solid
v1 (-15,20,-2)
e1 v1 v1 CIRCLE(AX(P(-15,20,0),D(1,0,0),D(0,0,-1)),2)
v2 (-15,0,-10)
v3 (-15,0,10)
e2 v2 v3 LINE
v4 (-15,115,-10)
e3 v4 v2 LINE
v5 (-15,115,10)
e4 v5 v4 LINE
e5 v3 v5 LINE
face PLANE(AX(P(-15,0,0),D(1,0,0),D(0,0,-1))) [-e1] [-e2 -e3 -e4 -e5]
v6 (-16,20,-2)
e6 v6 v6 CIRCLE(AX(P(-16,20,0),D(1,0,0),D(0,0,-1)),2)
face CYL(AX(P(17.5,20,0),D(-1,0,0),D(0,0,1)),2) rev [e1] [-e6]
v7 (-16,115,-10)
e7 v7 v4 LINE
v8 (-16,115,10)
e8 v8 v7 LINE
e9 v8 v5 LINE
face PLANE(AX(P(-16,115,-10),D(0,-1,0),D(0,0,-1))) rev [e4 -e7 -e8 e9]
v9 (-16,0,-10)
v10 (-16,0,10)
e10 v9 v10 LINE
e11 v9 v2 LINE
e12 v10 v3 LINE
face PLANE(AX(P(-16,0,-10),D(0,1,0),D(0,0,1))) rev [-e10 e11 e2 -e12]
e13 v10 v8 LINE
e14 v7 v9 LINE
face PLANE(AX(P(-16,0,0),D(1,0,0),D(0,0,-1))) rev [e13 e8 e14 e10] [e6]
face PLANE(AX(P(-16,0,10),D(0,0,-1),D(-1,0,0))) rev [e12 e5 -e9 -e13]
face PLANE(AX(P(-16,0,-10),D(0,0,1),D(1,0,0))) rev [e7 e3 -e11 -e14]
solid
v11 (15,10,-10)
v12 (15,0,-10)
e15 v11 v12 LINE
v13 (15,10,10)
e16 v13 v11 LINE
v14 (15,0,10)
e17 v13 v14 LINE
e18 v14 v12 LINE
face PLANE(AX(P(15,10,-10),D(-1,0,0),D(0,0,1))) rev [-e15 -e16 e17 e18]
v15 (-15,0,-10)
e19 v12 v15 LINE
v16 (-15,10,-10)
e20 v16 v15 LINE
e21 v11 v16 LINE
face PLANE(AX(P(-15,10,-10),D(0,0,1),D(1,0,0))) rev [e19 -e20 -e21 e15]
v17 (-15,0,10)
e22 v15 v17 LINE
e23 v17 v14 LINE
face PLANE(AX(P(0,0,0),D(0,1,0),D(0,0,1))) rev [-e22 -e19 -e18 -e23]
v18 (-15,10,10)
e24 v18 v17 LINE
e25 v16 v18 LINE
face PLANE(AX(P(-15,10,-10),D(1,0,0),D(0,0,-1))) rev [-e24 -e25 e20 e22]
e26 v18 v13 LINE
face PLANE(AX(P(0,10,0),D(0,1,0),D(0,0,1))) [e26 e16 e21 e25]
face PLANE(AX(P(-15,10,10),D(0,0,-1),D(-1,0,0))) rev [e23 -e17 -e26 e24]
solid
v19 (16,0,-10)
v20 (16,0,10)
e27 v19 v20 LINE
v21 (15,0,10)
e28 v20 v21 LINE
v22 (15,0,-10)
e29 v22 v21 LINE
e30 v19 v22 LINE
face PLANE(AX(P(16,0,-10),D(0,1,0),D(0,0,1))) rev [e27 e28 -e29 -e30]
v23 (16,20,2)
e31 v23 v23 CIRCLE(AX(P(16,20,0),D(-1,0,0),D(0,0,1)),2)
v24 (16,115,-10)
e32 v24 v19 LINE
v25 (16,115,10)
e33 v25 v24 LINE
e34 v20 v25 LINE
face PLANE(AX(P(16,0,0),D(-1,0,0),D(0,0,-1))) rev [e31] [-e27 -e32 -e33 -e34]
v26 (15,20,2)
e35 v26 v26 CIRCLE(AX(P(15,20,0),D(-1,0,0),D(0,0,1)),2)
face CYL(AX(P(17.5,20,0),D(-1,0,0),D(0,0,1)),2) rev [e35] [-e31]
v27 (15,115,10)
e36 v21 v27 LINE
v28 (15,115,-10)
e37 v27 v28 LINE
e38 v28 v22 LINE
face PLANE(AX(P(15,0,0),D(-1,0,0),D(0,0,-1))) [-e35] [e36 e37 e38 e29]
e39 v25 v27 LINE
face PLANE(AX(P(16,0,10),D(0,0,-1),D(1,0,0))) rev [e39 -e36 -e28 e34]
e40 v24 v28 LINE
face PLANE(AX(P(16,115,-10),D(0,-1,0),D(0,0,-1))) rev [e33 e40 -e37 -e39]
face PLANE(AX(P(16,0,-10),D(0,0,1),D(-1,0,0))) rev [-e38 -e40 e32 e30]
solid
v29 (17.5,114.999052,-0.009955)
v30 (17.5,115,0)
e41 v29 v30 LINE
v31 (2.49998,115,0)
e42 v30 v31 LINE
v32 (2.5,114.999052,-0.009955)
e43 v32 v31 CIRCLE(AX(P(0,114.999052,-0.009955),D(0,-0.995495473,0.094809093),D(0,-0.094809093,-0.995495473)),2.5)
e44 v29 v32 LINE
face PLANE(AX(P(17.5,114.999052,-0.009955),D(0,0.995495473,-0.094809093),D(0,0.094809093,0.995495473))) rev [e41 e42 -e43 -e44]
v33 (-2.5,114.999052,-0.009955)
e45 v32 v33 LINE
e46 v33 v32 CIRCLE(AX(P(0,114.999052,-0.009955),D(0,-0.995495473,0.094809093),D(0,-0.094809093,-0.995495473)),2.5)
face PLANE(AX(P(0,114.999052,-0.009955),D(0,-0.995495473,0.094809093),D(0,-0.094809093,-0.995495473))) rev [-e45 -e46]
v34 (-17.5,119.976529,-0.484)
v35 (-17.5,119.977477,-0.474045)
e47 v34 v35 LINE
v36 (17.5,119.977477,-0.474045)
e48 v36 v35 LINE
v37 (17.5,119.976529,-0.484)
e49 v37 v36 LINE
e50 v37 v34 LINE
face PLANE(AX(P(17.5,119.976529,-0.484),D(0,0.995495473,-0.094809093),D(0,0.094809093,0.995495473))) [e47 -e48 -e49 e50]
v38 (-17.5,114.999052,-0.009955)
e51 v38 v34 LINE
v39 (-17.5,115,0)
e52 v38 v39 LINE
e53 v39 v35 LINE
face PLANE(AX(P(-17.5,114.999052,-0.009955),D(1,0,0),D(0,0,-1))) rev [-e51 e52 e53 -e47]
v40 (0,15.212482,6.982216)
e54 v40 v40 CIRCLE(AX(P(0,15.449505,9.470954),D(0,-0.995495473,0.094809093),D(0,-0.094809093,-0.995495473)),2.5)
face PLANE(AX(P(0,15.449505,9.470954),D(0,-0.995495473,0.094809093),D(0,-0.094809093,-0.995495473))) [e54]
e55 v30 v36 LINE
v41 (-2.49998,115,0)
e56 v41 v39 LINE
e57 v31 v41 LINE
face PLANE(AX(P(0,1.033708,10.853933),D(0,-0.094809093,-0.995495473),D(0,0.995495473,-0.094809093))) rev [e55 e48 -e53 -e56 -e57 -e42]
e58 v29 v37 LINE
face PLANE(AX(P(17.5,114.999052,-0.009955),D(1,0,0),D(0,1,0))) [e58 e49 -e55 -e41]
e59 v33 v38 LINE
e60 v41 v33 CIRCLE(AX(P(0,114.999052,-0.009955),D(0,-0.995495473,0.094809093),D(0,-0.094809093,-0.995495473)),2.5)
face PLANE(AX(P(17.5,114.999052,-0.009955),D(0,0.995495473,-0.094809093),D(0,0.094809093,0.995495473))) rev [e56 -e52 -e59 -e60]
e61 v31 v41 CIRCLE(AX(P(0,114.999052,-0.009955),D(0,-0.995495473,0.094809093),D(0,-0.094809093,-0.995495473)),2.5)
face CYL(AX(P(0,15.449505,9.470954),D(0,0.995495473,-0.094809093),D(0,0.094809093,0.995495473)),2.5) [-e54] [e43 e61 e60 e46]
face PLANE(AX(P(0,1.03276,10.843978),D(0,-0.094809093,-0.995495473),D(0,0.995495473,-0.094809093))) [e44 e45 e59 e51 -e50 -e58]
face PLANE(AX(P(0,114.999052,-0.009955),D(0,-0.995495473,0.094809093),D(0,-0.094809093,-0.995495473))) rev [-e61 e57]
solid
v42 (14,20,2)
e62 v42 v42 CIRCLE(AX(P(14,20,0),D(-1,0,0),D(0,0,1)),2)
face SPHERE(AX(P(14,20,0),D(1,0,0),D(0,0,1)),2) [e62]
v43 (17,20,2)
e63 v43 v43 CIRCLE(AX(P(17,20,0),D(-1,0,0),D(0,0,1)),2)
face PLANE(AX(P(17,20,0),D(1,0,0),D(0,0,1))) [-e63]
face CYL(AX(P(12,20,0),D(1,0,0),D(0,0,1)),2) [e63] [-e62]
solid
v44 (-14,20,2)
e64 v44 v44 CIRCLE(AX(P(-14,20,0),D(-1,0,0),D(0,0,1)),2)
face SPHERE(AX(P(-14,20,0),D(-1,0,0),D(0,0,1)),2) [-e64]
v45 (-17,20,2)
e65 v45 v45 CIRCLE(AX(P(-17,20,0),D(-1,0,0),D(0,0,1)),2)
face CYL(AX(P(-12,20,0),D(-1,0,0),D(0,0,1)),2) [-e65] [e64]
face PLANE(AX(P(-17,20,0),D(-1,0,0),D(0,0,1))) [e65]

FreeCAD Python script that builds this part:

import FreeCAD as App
import Part
import Sketcher

V = App.Vector
Q = App.Units.Quantity


def edges_at(feature, points):
    """Names of the edges that pass closest to the given points."""
    edges = feature.Shape.Edges
    near = lambda p: min(range(len(edges)), key=lambda i: edges[i].distToShape(Part.Vertex(*p))[0])
    return sorted({f"Edge{near(p) + 1}" for p in points})

doc = App.newDocument("Part")
params = doc.addObject("Spreadsheet::Sheet", "Params")
for row, (alias, value) in enumerate([
    ("sketch1_width", "30 mm"),
    ("sketch1_height", "20 mm"),
    ("pad1_length", "10 mm"),
    ("sketch2_width", "115 mm"),
    ("sketch2_height", "20 mm"),
    ("pad2_length", "1 mm"),
    ("sketch3_diameter", "4 mm"),
    ("pad3_length", "1 mm"),
    ("pad3_length2", "4 mm"),
    ("fillet_radius", "2 mm"),
    ("sketch4_width", "35 mm"),
    ("sketch4_height", "5 mm"),
    ("pad4_length", "0.01 mm"),
    ("sketch5_diameter", "5 mm"),
    ("pad5_length", "100 mm"),
    ("sketch6_diameter", "4 mm"),
    ("pad6_length", "2.5 mm"),
    ("pad6_length2", "34.5 mm"),
], start=1):
    params.set(f"A{row}", alias)
    params.set(f"B{row}", "=" + value)
    params.setAlias(f"B{row}", alias)

body = doc.addObject("PartDesign::Body", "Body")

sketch1 = body.newObject("Sketcher::SketchObject", "Sketch")
sketch1.AttachmentSupport = (doc.getObject("XZ_Plane"), [""])
sketch1.MapMode = "FlatFace"
sketch1.addGeometry(Part.LineSegment(V(-15, -10, 0), V(-15, 10, 0)), False)
sketch1.addGeometry(Part.LineSegment(V(-15, 10, 0), V(15, 10, 0)), False)
sketch1.addGeometry(Part.LineSegment(V(15, 10, 0), V(15, -10, 0)), False)
sketch1.addGeometry(Part.LineSegment(V(15, -10, 0), V(-15, -10, 0)), False)
sketch1.addConstraint(Sketcher.Constraint("Coincident", 0, 2, 1, 1))
sketch1.addConstraint(Sketcher.Constraint("Coincident", 1, 2, 2, 1))
sketch1.addConstraint(Sketcher.Constraint("Coincident", 2, 2, 3, 1))
sketch1.addConstraint(Sketcher.Constraint("Coincident", 3, 2, 0, 1))
sketch1.addConstraint(Sketcher.Constraint("Vertical", 0))
sketch1.addConstraint(Sketcher.Constraint("Horizontal", 1))
sketch1.addConstraint(Sketcher.Constraint("Vertical", 2))
sketch1.addConstraint(Sketcher.Constraint("Horizontal", 3))
sketch1.addConstraint(Sketcher.Constraint("Symmetric", 0, 2, 2, 2, -1, 1))
sketch1.addConstraint(Sketcher.Constraint("DistanceX", 1, 1, 1, 2, Q("30 mm")))
sketch1.addConstraint(Sketcher.Constraint("DistanceY", 0, 1, 0, 2, Q("20 mm")))
sketch1.setExpression("Constraints[9]", "Params.sketch1_width")
sketch1.setExpression("Constraints[10]", "Params.sketch1_height")
pad1 = body.newObject("PartDesign::Pad", "Pad")
pad1.Profile = sketch1
pad1.setExpression("Length", "Params.pad1_length")
pad1.Reversed = True
body2 = doc.addObject("PartDesign::Body", "Body001")

sketch2 = body2.newObject("Sketcher::SketchObject", "Sketch001")
sketch2.AttachmentSupport = (doc.getObject("YZ_Plane001"), [""])
sketch2.MapMode = "FlatFace"
sketch2.AttachmentOffset = App.Placement(V(0, 0, -15), App.Rotation())
sketch2.addGeometry(Part.LineSegment(V(115, -10, 0), V(0, -10, 0)), False)
sketch2.addGeometry(Part.LineSegment(V(0, -10, 0), V(0, 10, 0)), False)
sketch2.addGeometry(Part.LineSegment(V(0, 10, 0), V(115, 10, 0)), False)
sketch2.addGeometry(Part.LineSegment(V(115, 10, 0), V(115, -10, 0)), False)
sketch2.addConstraint(Sketcher.Constraint("Coincident", 0, 2, 1, 1))
sketch2.addConstraint(Sketcher.Constraint("Coincident", 1, 2, 2, 1))
sketch2.addConstraint(Sketcher.Constraint("Coincident", 2, 2, 3, 1))
sketch2.addConstraint(Sketcher.Constraint("Coincident", 3, 2, 0, 1))
sketch2.addConstraint(Sketcher.Constraint("Horizontal", 0))
sketch2.addConstraint(Sketcher.Constraint("Vertical", 1))
sketch2.addConstraint(Sketcher.Constraint("Horizontal", 2))
sketch2.addConstraint(Sketcher.Constraint("Vertical", 3))
sketch2.addConstraint(Sketcher.Constraint("Symmetric", 0, 2, 1, 2, -1, 1))
sketch2.addConstraint(Sketcher.Constraint("DistanceX", 0, 2, 0, 1, Q("115 mm")))
sketch2.addConstraint(Sketcher.Constraint("DistanceY", 1, 1, 1, 2, Q("20 mm")))
sketch2.setExpression("Constraints[9]", "Params.sketch2_width")
sketch2.setExpression("Constraints[10]", "Params.sketch2_height")
pad2 = body2.newObject("PartDesign::Pad", "Pad001")
pad2.Profile = sketch2
pad2.setExpression("Length", "Params.pad2_length")
pad2.Reversed = True
body3 = doc.addObject("PartDesign::Body", "Body002")

sketch3 = body3.newObject("Sketcher::SketchObject", "Sketch002")
sketch3.AttachmentSupport = (doc.getObject("YZ_Plane002"), [""])
sketch3.MapMode = "FlatFace"
sketch3.AttachmentOffset = App.Placement(V(0, 0, -16), App.Rotation())
sketch3.addGeometry(Part.Circle(V(20, 0, 0), V(0, 0, 1), 2), False)
sketch3.addConstraint(Sketcher.Constraint("PointOnObject", 0, 3, -1))
sketch3.addConstraint(Sketcher.Constraint("Diameter", 0, Q("4 mm")))
sketch3.addConstraint(Sketcher.Constraint("DistanceX", -1, 1, 0, 3, Q("20 mm")))
sketch3.setExpression("Constraints[1]", "Params.sketch3_diameter")
pad3 = body3.newObject("PartDesign::Pad", "Pad002")
pad3.Profile = sketch3
pad3.Type = "TwoLengths"
pad3.setExpression("Length", "Params.pad3_length")
pad3.setExpression("Length2", "Params.pad3_length2")
pad3.Reversed = True
doc.recompute()

fillet = body3.newObject("PartDesign::Fillet", "Fillet")
fillet.Base = (pad3, edges_at(pad3, [(-12, 20, -2)]))
fillet.setExpression("Radius", "Params.fillet_radius")
body4 = doc.addObject("PartDesign::Body", "Body003")
doc.recompute()

mirroring = doc.addObject("Part::Mirroring", "Mirroring")
mirroring.Source = body2
mirroring.Base = V(0, 0, 0)
mirroring.Normal = V(1, 0, 0)
body4.BaseFeature = mirroring
doc.recompute()
body5 = doc.addObject("PartDesign::Body", "Body004")
doc.recompute()

mirroring2 = doc.addObject("Part::Mirroring", "Mirroring001")
mirroring2.Source = body3
mirroring2.Base = V(0, 0, 0)
mirroring2.Normal = V(1, 0, 0)
body5.BaseFeature = mirroring2
doc.recompute()
body6 = doc.addObject("PartDesign::Body", "Body005")

sketch4 = body6.newObject("Sketcher::SketchObject", "Sketch003")
sketch4.Placement = App.Placement(V(0, 1.033708, 10.853933), App.Rotation(V(-1, 0, 0), V(0, 0.995495473, -0.094809093), V(0, -0.094809093, -0.995495473), "ZXY"))
sketch4.addGeometry(Part.LineSegment(V(-18, 119, 0), V(-18, 114, 0)), False)
sketch4.addGeometry(Part.LineSegment(V(-18, 114, 0), V(18, 114, 0)), False)
sketch4.addGeometry(Part.LineSegment(V(18, 114, 0), V(18, 119, 0)), False)
sketch4.addGeometry(Part.LineSegment(V(18, 119, 0), V(-18, 119, 0)), False)
sketch4.addConstraint(Sketcher.Constraint("Coincident", 0, 2, 1, 1))
sketch4.addConstraint(Sketcher.Constraint("Coincident", 1, 2, 2, 1))
sketch4.addConstraint(Sketcher.Constraint("Coincident", 2, 2, 3, 1))
sketch4.addConstraint(Sketcher.Constraint("Coincident", 3, 2, 0, 1))
sketch4.addConstraint(Sketcher.Constraint("Vertical", 0))
sketch4.addConstraint(Sketcher.Constraint("Horizontal", 1))
sketch4.addConstraint(Sketcher.Constraint("Vertical", 2))
sketch4.addConstraint(Sketcher.Constraint("Horizontal", 3))
sketch4.addConstraint(Sketcher.Constraint("DistanceX", 1, 1, 1, 2, Q("35 mm")))
sketch4.addConstraint(Sketcher.Constraint("DistanceY", 0, 2, 0, 1, Q("5 mm")))
sketch4.addConstraint(Sketcher.Constraint("DistanceX", 0, 2, -1, 1, Q("17.5 mm")))
sketch4.addConstraint(Sketcher.Constraint("DistanceY", -1, 1, 0, 2, Q("114.481979 mm")))
sketch4.setExpression("Constraints[8]", "Params.sketch4_width")
sketch4.setExpression("Constraints[9]", "Params.sketch4_height")
pad4 = body6.newObject("PartDesign::Pad", "Pad003")
pad4.Profile = sketch4
pad4.setExpression("Length", "Params.pad4_length")

sketch5 = body6.newObject("Sketcher::SketchObject", "Sketch004")
sketch5.Placement = App.Placement(V(0, 113.966292, -10.853933), App.Rotation(V(1, 0, 0), V(0, 0.094809093, 0.995495473), V(0, -0.995495473, 0.094809093), "ZXY"))
sketch5.addGeometry(Part.Circle(V(0, 10.9, 0), V(0, 0, 1), 2.5), False)
sketch5.addConstraint(Sketcher.Constraint("PointOnObject", 0, 3, -2))
sketch5.addConstraint(Sketcher.Constraint("Diameter", 0, Q("5 mm")))
sketch5.addConstraint(Sketcher.Constraint("DistanceY", -1, 1, 0, 3, Q("10.893046 mm")))
sketch5.setExpression("Constraints[1]", "Params.sketch5_diameter")
pad5 = body6.newObject("PartDesign::Pad", "Pad004")
pad5.Profile = sketch5
pad5.setExpression("Length", "Params.pad5_length")
body7 = doc.addObject("PartDesign::Body", "Body006")

sketch6 = body7.newObject("Sketcher::SketchObject", "Sketch005")
sketch6.AttachmentSupport = (doc.getObject("YZ_Plane006"), [""])
sketch6.MapMode = "FlatFace"
sketch6.AttachmentOffset = App.Placement(V(0, 0, -16), App.Rotation())
sketch6.addGeometry(Part.Circle(V(20, 0, 0), V(0, 0, 1), 2), False)
sketch6.addConstraint(Sketcher.Constraint("PointOnObject", 0, 3, -1))
sketch6.addConstraint(Sketcher.Constraint("Diameter", 0, Q("4 mm")))
sketch6.addConstraint(Sketcher.Constraint("DistanceX", -1, 1, 0, 3, Q("20 mm")))
sketch6.setExpression("Constraints[1]", "Params.sketch6_diameter")
pad6 = body7.newObject("PartDesign::Pad", "Pad005")
pad6.Profile = sketch6
pad6.Type = "TwoLengths"
pad6.setExpression("Length", "Params.pad6_length")
pad6.setExpression("Length2", "Params.pad6_length2")
pad6.Reversed = True
doc.recompute()

body8 = doc.addObject("PartDesign::Body", "Body007")
body8.BaseFeature = body7
boolean = body2.newObject("PartDesign::Boolean", "Boolean")
boolean.Type = "Cut"
boolean.addObjects([body8])
doc.recompute()

boolean2 = body4.newObject("PartDesign::Boolean", "Boolean001")
boolean2.Type = "Cut"
boolean2.addObjects([body7])
mirroring.Visibility = False
mirroring2.Visibility = False

doc.recompute()
